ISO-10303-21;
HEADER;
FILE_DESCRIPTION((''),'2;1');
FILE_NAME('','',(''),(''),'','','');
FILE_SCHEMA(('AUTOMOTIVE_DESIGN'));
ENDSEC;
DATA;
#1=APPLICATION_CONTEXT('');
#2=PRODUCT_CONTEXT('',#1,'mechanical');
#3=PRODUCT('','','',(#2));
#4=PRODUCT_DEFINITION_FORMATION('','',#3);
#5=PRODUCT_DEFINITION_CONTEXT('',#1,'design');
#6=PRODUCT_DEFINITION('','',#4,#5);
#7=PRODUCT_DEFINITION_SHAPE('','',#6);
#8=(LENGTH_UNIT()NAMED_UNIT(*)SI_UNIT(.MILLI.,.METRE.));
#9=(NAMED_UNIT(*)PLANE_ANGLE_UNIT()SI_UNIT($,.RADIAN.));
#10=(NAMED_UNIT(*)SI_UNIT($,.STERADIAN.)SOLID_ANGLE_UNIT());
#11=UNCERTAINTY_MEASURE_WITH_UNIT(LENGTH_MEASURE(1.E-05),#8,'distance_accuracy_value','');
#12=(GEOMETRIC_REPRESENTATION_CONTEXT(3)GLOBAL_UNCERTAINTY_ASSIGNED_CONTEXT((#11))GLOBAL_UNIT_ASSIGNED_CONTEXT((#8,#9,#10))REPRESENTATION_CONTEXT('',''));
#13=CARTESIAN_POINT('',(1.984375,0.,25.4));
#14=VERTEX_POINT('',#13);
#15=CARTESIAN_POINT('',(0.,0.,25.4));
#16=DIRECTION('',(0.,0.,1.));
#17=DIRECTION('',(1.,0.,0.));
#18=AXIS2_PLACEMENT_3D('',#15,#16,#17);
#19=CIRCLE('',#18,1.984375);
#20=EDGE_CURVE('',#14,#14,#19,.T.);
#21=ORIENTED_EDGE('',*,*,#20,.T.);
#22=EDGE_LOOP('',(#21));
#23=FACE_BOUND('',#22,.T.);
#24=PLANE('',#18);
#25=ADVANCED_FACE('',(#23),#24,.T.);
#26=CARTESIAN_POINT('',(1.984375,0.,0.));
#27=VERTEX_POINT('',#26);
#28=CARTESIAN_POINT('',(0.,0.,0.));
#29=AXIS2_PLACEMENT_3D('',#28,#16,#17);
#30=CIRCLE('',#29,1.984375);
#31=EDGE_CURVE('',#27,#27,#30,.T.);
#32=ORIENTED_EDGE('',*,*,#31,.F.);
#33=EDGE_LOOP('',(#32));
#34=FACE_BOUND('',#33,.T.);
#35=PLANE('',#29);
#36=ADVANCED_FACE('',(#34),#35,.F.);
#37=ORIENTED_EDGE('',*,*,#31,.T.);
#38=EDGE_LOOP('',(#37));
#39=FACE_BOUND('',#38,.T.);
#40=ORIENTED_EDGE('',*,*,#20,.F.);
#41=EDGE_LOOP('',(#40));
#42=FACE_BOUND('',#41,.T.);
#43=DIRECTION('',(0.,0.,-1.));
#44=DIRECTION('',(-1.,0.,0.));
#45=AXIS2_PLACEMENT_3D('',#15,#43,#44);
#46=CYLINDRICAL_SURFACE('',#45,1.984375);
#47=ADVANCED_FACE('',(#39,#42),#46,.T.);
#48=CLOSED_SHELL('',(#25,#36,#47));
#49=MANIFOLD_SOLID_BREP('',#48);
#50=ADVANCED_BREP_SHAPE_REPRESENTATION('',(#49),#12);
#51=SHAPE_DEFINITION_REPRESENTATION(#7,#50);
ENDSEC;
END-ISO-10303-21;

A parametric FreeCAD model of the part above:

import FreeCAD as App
import Part
import Sketcher

V = App.Vector
Q = App.Units.Quantity

doc = App.newDocument("Part")
params = doc.addObject("Spreadsheet::Sheet", "Params")
for row, (alias, value) in enumerate([
    ("sketch1_diameter", "0.15625 in"),
    ("pad1_length", "1 in"),
], start=1):
    params.set(f"A{row}", alias)
    params.set(f"B{row}", "=" + value)
    params.setAlias(f"B{row}", alias)

body = doc.addObject("PartDesign::Body", "Body")

# Sketch on XY plane
sketch1 = doc.addObject("Sketcher::SketchObject", "Sketch")
body.addObject(sketch1)
sketch1.AttachmentSupport = (doc.XY_Plane, [""])
sketch1.MapMode = "FlatFace"
sketch1.addGeometry(Part.Circle(V(0, 0, 0), V(0, 0, 1), 1.984375), False)
sketch1.addConstraint([
    Sketcher.Constraint("Coincident", 0, 3, -1, 1),
    Sketcher.Constraint("Diameter", 0, Q("0.15625 in")),
])
sketch1.setExpression("Constraints[1]", "Params.sketch1_diameter")
pad1 = doc.addObject("PartDesign::Pad", "Pad")
body.addObject(pad1)
pad1.Profile = sketch1
pad1.setExpression("Length", "Params.pad1_length")

doc.recompute()
